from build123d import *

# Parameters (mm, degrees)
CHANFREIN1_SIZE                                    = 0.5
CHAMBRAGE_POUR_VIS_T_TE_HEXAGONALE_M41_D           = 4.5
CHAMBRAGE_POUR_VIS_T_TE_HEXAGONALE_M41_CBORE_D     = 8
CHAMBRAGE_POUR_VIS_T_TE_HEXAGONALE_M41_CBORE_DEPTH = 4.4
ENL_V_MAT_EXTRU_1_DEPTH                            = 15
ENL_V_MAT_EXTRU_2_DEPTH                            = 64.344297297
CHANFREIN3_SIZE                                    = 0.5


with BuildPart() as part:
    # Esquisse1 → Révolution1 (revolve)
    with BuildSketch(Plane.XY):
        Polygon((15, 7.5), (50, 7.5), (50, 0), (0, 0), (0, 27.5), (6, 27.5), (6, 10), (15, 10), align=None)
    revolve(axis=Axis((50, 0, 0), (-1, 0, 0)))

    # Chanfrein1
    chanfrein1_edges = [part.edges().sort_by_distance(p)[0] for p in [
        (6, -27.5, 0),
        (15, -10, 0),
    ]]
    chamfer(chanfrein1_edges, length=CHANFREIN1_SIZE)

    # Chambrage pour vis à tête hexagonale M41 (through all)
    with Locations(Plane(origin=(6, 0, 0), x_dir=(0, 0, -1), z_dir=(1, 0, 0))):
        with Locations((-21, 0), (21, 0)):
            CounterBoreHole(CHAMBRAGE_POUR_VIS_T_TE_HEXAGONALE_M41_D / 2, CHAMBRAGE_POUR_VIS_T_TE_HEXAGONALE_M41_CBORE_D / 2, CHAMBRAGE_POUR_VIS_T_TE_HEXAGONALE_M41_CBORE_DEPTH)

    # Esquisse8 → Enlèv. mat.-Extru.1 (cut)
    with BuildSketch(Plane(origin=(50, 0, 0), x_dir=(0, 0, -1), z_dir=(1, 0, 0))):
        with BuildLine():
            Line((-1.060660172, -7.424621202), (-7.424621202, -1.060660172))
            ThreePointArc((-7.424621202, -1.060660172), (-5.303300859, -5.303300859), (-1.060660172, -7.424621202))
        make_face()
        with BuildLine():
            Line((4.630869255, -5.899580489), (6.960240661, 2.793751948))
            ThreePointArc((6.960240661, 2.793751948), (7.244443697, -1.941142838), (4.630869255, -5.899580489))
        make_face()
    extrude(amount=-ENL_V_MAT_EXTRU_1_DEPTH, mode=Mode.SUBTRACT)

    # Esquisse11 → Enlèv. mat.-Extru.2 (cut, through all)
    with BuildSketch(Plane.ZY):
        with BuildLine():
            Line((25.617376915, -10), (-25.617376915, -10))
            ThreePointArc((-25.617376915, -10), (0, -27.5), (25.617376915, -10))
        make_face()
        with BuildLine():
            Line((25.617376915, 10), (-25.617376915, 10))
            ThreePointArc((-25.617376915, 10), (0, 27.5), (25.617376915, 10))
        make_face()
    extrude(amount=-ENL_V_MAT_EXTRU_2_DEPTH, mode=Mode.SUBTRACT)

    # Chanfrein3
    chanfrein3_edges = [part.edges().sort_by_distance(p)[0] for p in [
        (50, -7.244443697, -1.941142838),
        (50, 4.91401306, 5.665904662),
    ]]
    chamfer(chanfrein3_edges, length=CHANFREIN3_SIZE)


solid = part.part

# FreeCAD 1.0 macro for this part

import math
import FreeCAD as App
import Part
import Sketcher

V = App.Vector
Q = App.Units.Quantity


def edges_at(feature, points):
    """Names of the edges that pass closest to the given points."""
    edges = feature.Shape.Edges
    near = lambda p: min(range(len(edges)), key=lambda i: edges[i].distToShape(Part.Vertex(*p))[0])
    return sorted({f"Edge{near(p) + 1}" for p in points})


def add_polygon(sketch, points):
    """Adds a closed chain of lines whose ends are joined by coincident constraints."""
    first, n = sketch.GeometryCount, len(points)
    for a, b in zip(points, points[1:] + points[:1]):
        sketch.addGeometry(Part.LineSegment(App.Vector(*a, 0), App.Vector(*b, 0)), False)
    for i in range(n):
        sketch.addConstraint(Sketcher.Constraint("Coincident", first + i, 2, first + (i + 1) % n, 1))

doc = App.newDocument("Part")
params = doc.addObject("Spreadsheet::Sheet", "Params")
for row, (alias, value) in enumerate([
    ("sketch1_width", "35 mm"),
    ("sketch1_width2", "9 mm"),
    ("sketch1_width3", "6 mm"),
    ("sketch1_height", "2.5 mm"),
    ("sketch1_height2", "17.5 mm"),
    ("revolution_angle", "360 deg"),
    ("chamfer_size", "0.5 mm"),
    ("sketch2_diameter", "4.5 mm"),
    ("hole_diameter", "4.5 mm"),
    ("hole_cbore_diameter", "8 mm"),
    ("hole_cbore_depth", "4.4 mm"),
    ("sketch3_radius", "7.5 mm"),
    ("sketch3_length", "9 mm"),
    ("pocket1_length", "15 mm"),
    ("sketch4_radius", "27.5 mm"),
    ("chamfer2_size", "0.5 mm"),
], start=1):
    params.set(f"A{row}", alias)
    params.set(f"B{row}", "=" + value)
    params.setAlias(f"B{row}", alias)

body = doc.addObject("PartDesign::Body", "Body")

# Sketch on XY plane
sketch1 = body.newObject("Sketcher::SketchObject", "Sketch")
sketch1.AttachmentSupport = (doc.getObject("XY_Plane"), [""])
sketch1.MapMode = "FlatFace"
add_polygon(sketch1, [(50, 7.5), (15, 7.5), (15, 10), (6, 10), (6, 27.5), (0, 27.5), (0, 0), (50, 0)])  # lines 0-7
sketch1.addConstraint([
    Sketcher.Constraint("Horizontal", 0),
    Sketcher.Constraint("Vertical", 1),
    Sketcher.Constraint("Horizontal", 2),
    Sketcher.Constraint("Vertical", 3),
    Sketcher.Constraint("Horizontal", 4),
    Sketcher.Constraint("Vertical", 5),
    Sketcher.Constraint("Horizontal", 6),
    Sketcher.Constraint("Vertical", 7),
    Sketcher.Constraint("Coincident", 5, 2, -1, 1),
    Sketcher.Constraint("DistanceX", 0, 2, 0, 1, Q("35 mm")),
    Sketcher.Constraint("DistanceX", 2, 2, 2, 1, Q("9 mm")),
    Sketcher.Constraint("DistanceX", 4, 2, 4, 1, Q("6 mm")),
    Sketcher.Constraint("DistanceY", 1, 1, 1, 2, Q("2.5 mm")),
    Sketcher.Constraint("DistanceY", 3, 1, 3, 2, Q("17.5 mm")),
    Sketcher.Constraint("DistanceY", 5, 2, 5, 1, Q("27.5 mm")),
])
sketch1.setExpression("Constraints[17]", "Params.sketch1_width")
sketch1.setExpression("Constraints[18]", "Params.sketch1_width2")
sketch1.setExpression("Constraints[19]", "Params.sketch1_width3")
sketch1.setExpression("Constraints[20]", "Params.sketch1_height")
sketch1.setExpression("Constraints[21]", "Params.sketch1_height2")
revolution = body.newObject("PartDesign::Revolution", "Revolution")
revolution.Profile = sketch1
revolution.ReferenceAxis = (sketch1, ["H_Axis"])
revolution.setExpression("Angle", "Params.revolution_angle")
doc.recompute()

chamfer = body.newObject("PartDesign::Chamfer", "Chamfer")
chamfer.Base = (revolution, edges_at(revolution, [(6, -27.5, 0), (15, -10, 0)]))
chamfer.setExpression("Size", "Params.chamfer_size")

# Sketch on YZ plane
sketch2 = body.newObject("Sketcher::SketchObject", "Sketch001")
sketch2.AttachmentSupport = (doc.getObject("YZ_Plane"), [""])
sketch2.MapMode = "FlatFace"
sketch2.AttachmentOffset = App.Placement(V(0, 0, 6), App.Rotation())
sketch2.addGeometry([
    Part.Circle(V(0, 21, 0), V(0, 0, 1), 2.2),
    Part.Circle(V(0, -21, 0), V(0, 0, 1), 2.2),
], False)
sketch2.addConstraint([
    Sketcher.Constraint("Equal", 0, 1),
    Sketcher.Constraint("Symmetric", 0, 3, 1, 3, -1, 1),
    Sketcher.Constraint("PointOnObject", 0, 3, -2),
    Sketcher.Constraint("Diameter", 0, Q("4.5 mm")),
    Sketcher.Constraint("DistanceY", -1, 1, 0, 3, Q("21 mm")),
])
sketch2.setExpression("Constraints[3]", "Params.sketch2_diameter")
doc.recompute()
hole = body.newObject("PartDesign::Hole", "Hole")
hole.Profile = sketch2
hole.ThreadType = "None"
hole.setExpression("Diameter", "Params.hole_diameter")
hole.DepthType = "ThroughAll"
hole.HoleCutType = "Counterbore"
hole.setExpression("HoleCutDiameter", "Params.hole_cbore_diameter")
hole.setExpression("HoleCutDepth", "Params.hole_cbore_depth")

# Sketch on YZ plane
sketch3 = body.newObject("Sketcher::SketchObject", "Sketch002")
sketch3.AttachmentSupport = (doc.getObject("YZ_Plane"), [""])
sketch3.MapMode = "FlatFace"
sketch3.AttachmentOffset = App.Placement(V(0, 0, 50), App.Rotation())
sketch3.addGeometry([
    Part.LineSegment(V(-7, 1, 0), V(-1, 7, 0)),
    Part.ArcOfCircle(Part.Circle(V(0, 0, 0), V(0, 0, 1), 7), math.radians(98), math.radians(172)),
    Part.LineSegment(V(3, -7, 0), V(-6, -5, 0)),
    Part.ArcOfCircle(Part.Circle(V(0, 0, 0), V(0, 0, 1), 8), math.radians(-142), math.radians(-68)),
], False)
sketch3.addConstraint([
    Sketcher.Constraint("Coincident", 0, 1, 1, 2),
    Sketcher.Constraint("Coincident", 1, 1, 0, 2),
    Sketcher.Constraint("Coincident", 2, 1, 3, 2),
    Sketcher.Constraint("Coincident", 3, 1, 2, 2),
    Sketcher.Constraint("Coincident", 1, 3, -1, 1),
    Sketcher.Constraint("Coincident", 3, 3, -1, 1),
    Sketcher.Constraint("Equal", 1, 3),
    Sketcher.Constraint("Equal", 0, 2),
    Sketcher.Constraint("Radius", 1, Q("7.5 mm")),
    Sketcher.Constraint("Angle", 0, Q("45 deg")),
    Sketcher.Constraint("Angle", 2, Q("165 deg")),
    Sketcher.Constraint("Distance", 0, Q("9 mm")),
])
sketch3.setExpression("Constraints[8]", "Params.sketch3_radius")
sketch3.setExpression("Constraints[11]", "Params.sketch3_length")
pocket1 = body.newObject("PartDesign::Pocket", "Pocket")
pocket1.Profile = sketch3
pocket1.setExpression("Length", "Params.pocket1_length")

# Sketch on YZ plane
sketch4 = body.newObject("Sketcher::SketchObject", "Sketch003")
sketch4.AttachmentSupport = (doc.getObject("YZ_Plane"), [""])
sketch4.MapMode = "FlatFace"
sketch4.addGeometry([
    Part.LineSegment(V(-10, 26, 0), V(-10, -26, 0)),
    Part.ArcOfCircle(Part.Circle(V(0, 0, 0), V(0, 0, 1), 28), math.radians(111), math.radians(249)),
    Part.LineSegment(V(10, -26, 0), V(10, 26, 0)),
    Part.ArcOfCircle(Part.Circle(V(0, 0, 0), V(0, 0, 1), 28), math.radians(-69), math.radians(69)),
], False)
sketch4.addConstraint([
    Sketcher.Constraint("Coincident", 0, 1, 1, 1),
    Sketcher.Constraint("Coincident", 1, 2, 0, 2),
    Sketcher.Constraint("Coincident", 2, 1, 3, 1),
    Sketcher.Constraint("Coincident", 3, 2, 2, 2),
    Sketcher.Constraint("Vertical", 0),
    Sketcher.Constraint("Vertical", 2),
    Sketcher.Constraint("Coincident", 1, 3, -1, 1),
    Sketcher.Constraint("Coincident", 3, 3, -1, 1),
    Sketcher.Constraint("Equal", 1, 3),
    Sketcher.Constraint("Horizontal", 1, 2, 2, 1),
    Sketcher.Constraint("Radius", 1, Q("27.5 mm")),
    Sketcher.Constraint("DistanceX", 0, 1, -1, 1, Q("10 mm")),
])
sketch4.setExpression("Constraints[10]", "Params.sketch4_radius")
pocket2 = body.newObject("PartDesign::Pocket", "Pocket001")
pocket2.Profile = sketch4
pocket2.Type = "ThroughAll"
pocket2.Reversed = True
doc.recompute()

chamfer2 = body.newObject("PartDesign::Chamfer", "Chamfer001")
chamfer2.Base = (pocket2, edges_at(pocket2, [(50, -7.244, -1.941), (50, 4.914, 5.666)]))
chamfer2.setExpression("Size", "Params.chamfer2_size")

doc.recompute()
